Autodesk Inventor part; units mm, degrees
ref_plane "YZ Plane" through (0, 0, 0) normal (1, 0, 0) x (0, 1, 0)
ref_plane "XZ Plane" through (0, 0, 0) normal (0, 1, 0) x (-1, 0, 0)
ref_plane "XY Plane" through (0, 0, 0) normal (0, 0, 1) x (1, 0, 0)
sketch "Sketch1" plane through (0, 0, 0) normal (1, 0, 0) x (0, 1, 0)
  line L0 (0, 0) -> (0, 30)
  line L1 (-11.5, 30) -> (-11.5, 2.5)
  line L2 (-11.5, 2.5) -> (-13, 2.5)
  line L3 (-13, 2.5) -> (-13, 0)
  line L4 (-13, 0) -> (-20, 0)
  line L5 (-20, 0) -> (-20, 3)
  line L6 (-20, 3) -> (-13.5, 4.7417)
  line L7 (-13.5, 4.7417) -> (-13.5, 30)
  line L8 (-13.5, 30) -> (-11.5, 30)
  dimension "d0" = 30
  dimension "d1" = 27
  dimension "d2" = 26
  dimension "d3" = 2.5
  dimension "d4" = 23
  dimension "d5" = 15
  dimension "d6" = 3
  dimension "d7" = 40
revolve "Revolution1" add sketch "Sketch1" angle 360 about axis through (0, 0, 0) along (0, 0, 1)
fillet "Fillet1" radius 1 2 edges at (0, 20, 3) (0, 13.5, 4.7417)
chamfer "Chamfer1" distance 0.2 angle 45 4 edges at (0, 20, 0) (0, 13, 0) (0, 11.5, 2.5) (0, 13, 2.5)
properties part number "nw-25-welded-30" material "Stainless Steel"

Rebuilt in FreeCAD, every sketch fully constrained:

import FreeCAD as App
import Part
import Sketcher
from FreeCAD import Vector
Q = App.Units.Quantity


def edges_at(feature, points):
    """Names of the edges that pass closest to the given points."""
    edges = feature.Shape.Edges
    near = lambda p: min(range(len(edges)), key=lambda i: edges[i].distToShape(Part.Vertex(*p))[0])
    return sorted({f"Edge{near(p) + 1}" for p in points})


def add_polygon(sketch, points):
    """Adds a closed chain of lines whose ends are joined by coincident constraints."""
    first, n = sketch.GeometryCount, len(points)
    for a, b in zip(points, points[1:] + points[:1]):
        sketch.addGeometry(Part.LineSegment(App.Vector(*a, 0), App.Vector(*b, 0)), False)
    for i in range(n):
        sketch.addConstraint(Sketcher.Constraint("Coincident", first + i, 2, first + (i + 1) % n, 1))

doc = App.newDocument("Part")
body = doc.addObject("PartDesign::Body", "Body")

# Sketch on YZ plane
sketch1 = doc.addObject("Sketcher::SketchObject", "Sketch")
body.addObject(sketch1)
sketch1.AttachmentSupport = (doc.YZ_Plane, [""])
sketch1.MapMode = "FlatFace"
add_polygon(sketch1, [(-11.5, 2.5), (-11.5, 30), (-13.5, 30), (-13.5, 4.7), (-20, 3), (-20, 0), (-13, 0), (-13, 2.5)])  # lines 0-7
sketch1.addConstraint(Sketcher.Constraint("Vertical", 0))
sketch1.addConstraint(Sketcher.Constraint("Horizontal", 1))
sketch1.addConstraint(Sketcher.Constraint("Vertical", 2))
sketch1.addConstraint(Sketcher.Constraint("Vertical", 4))
sketch1.addConstraint(Sketcher.Constraint("Horizontal", 5))
sketch1.addConstraint(Sketcher.Constraint("Vertical", 6))
sketch1.addConstraint(Sketcher.Constraint("Horizontal", 7))
sketch1.addConstraint(Sketcher.Constraint("PointOnObject", 4, 2, -1))
sketch1.addConstraint(Sketcher.Constraint("DistanceY", 4, 2, 4, 1, Q("3 mm")))
sketch1.addConstraint(Sketcher.Constraint("DistanceY", 6, 1, 6, 2, Q("2.5 mm")))
sketch1.addConstraint(Sketcher.Constraint("DistanceY", -1, 1, 0, 2, Q("30 mm")))
sketch1.addConstraint(Sketcher.Constraint("DistanceX", 1, 2, 1, 1, Q("2 mm")))
sketch1.addConstraint(Sketcher.Constraint("DistanceX", 5, 1, 5, 2, Q("7 mm")))
sketch1.addConstraint(Sketcher.Constraint("Angle", 3, Q("-164.9998 deg")))
sketch1.addConstraint(Sketcher.Constraint("DistanceX", 7, 1, 7, 2, Q("1.5 mm")))
sketch1.addConstraint(Sketcher.Constraint("DistanceX", 3, 2, -1, 1, Q("20 mm")))
revolution = doc.addObject("PartDesign::Revolution", "Revolution")
body.addObject(revolution)
revolution.Profile = sketch1
revolution.ReferenceAxis = (sketch1, ["V_Axis"])
revolution.Angle = 360
doc.recompute()

fillet = doc.addObject("PartDesign::Fillet", "Fillet")
body.addObject(fillet)
fillet.Base = (revolution, edges_at(revolution, [(0, 20, 3), (0, 13.5, 4.742)]))
fillet.Radius = 1
doc.recompute()

chamfer = doc.addObject("PartDesign::Chamfer", "Chamfer")
body.addObject(chamfer)
chamfer.Base = (fillet, edges_at(fillet, [
    (0, 20, 0),
    (0, 13, 0),
    (0, 11.5, 2.5),
    (0, 13, 2.5),
]))
chamfer.Size = 0.2

doc.recompute()
